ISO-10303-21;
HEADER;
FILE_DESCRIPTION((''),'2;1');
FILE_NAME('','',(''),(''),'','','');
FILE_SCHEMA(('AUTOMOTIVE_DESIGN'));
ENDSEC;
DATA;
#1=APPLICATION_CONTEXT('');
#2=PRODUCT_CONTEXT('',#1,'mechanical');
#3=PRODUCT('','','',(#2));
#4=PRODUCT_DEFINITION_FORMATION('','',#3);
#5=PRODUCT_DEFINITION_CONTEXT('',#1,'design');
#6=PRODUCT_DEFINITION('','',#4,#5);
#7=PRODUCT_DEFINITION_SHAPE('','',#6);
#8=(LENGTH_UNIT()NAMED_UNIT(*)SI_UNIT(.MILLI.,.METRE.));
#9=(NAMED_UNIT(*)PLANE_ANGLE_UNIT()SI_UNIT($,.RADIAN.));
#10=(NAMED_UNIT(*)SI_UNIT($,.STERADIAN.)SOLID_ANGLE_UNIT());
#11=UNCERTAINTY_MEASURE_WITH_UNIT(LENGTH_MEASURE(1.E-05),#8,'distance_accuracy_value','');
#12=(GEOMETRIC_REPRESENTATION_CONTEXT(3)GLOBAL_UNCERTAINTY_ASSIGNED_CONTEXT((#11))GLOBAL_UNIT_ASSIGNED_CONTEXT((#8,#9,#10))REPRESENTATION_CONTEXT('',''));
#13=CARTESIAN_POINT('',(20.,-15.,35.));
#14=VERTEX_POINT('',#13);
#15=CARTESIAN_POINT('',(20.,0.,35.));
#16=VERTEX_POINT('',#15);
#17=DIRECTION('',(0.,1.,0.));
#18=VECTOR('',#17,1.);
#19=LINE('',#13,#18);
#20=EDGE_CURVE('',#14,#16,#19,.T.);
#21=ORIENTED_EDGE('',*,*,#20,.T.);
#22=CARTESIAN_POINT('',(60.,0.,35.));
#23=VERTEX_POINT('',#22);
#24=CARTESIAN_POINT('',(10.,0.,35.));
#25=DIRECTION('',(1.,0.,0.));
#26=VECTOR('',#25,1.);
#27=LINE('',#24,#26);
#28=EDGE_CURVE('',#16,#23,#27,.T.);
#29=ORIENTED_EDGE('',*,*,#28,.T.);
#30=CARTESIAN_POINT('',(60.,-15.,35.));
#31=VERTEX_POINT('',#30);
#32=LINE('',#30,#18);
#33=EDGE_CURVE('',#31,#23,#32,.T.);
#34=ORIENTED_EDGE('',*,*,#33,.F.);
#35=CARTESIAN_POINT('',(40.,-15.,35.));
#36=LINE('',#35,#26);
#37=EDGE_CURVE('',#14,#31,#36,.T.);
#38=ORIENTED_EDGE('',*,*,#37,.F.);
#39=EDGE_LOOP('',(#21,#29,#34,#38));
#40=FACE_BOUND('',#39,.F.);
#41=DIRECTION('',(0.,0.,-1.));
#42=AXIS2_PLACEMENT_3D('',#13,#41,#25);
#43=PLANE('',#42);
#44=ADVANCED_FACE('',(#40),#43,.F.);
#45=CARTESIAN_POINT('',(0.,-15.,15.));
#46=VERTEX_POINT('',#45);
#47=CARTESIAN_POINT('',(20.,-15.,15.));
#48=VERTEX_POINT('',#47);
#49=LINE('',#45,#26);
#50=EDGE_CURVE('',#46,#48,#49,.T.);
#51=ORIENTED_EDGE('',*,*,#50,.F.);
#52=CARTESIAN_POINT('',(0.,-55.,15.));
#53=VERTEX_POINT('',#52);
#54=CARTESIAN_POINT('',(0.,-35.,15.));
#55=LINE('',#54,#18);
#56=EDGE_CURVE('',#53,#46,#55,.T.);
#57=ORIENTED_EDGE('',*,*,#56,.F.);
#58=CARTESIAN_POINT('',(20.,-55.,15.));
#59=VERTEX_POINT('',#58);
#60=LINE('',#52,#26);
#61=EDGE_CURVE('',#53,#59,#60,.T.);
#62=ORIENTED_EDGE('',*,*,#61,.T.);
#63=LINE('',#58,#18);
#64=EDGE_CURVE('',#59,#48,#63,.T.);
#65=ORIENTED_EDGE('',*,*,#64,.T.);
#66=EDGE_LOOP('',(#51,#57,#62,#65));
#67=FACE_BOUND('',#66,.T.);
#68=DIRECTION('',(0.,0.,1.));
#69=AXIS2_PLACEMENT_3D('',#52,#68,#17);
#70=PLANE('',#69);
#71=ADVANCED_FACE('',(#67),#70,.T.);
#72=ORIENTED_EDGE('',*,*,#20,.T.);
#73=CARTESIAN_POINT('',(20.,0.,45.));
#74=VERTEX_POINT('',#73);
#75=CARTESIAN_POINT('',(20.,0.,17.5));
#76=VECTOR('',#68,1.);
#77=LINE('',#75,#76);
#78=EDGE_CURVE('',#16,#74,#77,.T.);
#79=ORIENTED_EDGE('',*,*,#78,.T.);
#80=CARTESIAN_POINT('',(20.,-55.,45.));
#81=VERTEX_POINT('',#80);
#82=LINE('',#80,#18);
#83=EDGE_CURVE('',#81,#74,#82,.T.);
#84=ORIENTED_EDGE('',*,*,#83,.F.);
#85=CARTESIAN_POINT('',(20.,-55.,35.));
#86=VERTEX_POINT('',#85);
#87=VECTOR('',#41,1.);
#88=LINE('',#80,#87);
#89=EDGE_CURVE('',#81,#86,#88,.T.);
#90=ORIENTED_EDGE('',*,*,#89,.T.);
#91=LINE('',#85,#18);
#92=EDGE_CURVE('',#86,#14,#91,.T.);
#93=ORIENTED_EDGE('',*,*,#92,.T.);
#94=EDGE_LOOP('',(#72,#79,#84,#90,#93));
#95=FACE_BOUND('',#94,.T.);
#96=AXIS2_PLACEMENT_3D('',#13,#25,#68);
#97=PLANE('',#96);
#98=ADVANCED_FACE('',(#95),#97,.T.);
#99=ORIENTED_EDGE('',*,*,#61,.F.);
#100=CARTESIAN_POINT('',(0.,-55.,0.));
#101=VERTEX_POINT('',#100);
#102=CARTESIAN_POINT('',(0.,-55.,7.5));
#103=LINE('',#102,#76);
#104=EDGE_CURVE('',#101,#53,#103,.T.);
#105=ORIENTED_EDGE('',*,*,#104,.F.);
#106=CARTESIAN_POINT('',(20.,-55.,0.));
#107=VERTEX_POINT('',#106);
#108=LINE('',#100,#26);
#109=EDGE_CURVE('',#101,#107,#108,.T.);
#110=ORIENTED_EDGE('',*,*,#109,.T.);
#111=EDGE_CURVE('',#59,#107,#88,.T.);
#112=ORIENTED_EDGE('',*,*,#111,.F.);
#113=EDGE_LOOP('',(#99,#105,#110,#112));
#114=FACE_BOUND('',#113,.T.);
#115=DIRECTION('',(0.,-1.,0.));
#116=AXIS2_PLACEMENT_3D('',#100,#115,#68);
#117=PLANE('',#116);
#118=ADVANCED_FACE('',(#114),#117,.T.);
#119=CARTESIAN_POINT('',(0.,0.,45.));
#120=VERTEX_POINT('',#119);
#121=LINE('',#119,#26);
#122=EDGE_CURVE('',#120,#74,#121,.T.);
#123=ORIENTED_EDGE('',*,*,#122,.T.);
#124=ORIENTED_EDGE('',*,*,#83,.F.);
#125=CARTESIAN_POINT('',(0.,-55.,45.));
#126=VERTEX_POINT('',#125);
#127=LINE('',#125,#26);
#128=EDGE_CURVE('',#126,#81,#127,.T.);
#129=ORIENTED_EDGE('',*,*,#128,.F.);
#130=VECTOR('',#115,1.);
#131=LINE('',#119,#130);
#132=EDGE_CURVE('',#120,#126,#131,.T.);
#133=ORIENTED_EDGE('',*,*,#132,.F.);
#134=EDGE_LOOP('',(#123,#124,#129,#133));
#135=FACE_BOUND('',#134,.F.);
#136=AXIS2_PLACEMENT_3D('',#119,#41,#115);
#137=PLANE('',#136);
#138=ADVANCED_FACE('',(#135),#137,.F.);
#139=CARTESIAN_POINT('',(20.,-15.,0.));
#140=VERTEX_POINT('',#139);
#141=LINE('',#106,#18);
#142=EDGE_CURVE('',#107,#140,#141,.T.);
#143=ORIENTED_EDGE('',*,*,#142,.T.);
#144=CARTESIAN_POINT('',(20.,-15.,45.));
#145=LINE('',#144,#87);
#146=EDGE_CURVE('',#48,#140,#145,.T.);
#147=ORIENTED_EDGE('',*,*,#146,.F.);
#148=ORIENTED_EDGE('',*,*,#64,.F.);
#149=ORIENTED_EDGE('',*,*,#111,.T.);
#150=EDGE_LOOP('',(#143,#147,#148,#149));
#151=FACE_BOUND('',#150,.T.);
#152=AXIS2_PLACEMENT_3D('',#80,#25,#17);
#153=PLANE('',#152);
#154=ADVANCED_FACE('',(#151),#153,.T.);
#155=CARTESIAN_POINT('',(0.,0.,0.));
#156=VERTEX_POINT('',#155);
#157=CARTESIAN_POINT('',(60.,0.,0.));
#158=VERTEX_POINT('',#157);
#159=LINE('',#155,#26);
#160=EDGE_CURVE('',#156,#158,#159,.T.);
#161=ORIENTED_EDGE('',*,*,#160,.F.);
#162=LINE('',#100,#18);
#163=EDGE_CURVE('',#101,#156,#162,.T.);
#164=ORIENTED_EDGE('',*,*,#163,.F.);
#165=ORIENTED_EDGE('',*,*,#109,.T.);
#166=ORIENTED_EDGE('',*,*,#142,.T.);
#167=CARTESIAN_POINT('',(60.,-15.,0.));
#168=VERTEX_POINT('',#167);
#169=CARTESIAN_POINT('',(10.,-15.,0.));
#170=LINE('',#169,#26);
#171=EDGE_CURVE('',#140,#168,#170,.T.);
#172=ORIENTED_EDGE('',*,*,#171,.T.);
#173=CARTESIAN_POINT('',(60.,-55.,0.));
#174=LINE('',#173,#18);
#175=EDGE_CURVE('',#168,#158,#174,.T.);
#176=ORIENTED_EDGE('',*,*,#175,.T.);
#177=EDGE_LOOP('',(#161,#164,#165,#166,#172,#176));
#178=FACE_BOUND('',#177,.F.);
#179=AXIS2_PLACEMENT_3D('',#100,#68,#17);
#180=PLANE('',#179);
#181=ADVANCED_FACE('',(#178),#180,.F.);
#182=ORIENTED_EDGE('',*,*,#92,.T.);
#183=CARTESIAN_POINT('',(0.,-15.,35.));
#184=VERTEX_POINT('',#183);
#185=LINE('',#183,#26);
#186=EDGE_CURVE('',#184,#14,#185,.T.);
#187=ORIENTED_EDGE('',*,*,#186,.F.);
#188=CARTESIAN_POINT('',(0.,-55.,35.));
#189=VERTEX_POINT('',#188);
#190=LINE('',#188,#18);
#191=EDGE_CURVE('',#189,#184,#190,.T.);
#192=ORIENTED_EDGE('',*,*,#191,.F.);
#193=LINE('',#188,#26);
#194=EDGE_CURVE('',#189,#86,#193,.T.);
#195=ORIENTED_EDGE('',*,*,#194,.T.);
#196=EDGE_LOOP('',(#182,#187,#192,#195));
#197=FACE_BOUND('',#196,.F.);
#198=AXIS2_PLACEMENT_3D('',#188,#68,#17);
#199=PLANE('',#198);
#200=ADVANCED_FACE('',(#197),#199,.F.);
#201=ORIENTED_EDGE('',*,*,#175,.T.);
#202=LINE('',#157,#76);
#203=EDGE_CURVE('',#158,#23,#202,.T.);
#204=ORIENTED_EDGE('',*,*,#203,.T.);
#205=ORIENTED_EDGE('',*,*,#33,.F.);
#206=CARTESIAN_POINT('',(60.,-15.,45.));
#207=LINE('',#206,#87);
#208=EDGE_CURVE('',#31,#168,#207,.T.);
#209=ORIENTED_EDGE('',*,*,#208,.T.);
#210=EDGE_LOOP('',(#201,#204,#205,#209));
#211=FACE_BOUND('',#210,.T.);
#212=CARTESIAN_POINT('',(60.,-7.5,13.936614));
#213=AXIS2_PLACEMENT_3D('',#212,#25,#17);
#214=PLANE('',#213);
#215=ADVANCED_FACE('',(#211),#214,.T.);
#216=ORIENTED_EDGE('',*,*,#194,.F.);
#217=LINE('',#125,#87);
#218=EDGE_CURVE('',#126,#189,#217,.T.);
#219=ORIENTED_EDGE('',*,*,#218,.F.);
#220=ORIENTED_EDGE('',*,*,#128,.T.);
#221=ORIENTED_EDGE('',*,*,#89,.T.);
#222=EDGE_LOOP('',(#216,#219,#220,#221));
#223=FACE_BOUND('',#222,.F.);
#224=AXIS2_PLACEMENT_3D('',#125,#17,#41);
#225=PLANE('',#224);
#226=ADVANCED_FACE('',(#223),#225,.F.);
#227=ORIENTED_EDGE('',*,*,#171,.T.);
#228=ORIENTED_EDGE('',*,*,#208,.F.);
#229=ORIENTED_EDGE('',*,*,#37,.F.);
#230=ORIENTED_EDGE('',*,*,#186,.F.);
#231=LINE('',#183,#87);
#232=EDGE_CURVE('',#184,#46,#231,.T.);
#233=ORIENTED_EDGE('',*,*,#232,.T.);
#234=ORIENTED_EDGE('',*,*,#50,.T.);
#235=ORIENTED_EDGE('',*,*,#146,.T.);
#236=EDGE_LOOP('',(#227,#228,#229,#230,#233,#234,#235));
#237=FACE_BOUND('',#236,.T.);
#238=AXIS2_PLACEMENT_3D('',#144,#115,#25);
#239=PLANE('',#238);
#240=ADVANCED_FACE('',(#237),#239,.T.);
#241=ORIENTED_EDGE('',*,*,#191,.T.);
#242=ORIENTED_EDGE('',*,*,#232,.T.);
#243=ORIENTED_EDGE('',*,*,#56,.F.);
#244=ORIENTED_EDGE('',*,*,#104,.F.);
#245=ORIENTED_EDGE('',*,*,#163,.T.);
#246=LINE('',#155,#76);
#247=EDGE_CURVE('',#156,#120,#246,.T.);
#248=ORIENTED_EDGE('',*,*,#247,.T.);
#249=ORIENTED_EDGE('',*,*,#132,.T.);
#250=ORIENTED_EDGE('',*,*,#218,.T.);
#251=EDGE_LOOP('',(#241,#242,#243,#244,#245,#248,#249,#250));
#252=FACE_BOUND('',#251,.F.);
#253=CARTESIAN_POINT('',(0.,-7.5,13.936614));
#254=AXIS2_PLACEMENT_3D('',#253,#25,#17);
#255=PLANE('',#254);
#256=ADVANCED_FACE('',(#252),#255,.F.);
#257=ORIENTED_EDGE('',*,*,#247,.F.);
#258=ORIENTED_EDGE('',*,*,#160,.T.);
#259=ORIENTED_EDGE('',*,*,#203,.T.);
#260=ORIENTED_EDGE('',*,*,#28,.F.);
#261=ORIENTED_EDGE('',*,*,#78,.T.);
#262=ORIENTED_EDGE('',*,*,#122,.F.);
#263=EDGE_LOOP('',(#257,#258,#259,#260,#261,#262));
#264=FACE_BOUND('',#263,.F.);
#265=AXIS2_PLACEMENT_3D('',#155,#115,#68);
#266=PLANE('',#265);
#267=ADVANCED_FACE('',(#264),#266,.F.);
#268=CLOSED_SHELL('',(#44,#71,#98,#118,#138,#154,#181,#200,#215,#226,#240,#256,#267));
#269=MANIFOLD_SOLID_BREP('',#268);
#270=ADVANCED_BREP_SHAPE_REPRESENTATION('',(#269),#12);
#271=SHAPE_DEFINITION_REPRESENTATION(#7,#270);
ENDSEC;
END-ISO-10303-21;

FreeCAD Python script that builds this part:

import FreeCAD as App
import Part
import Sketcher
from FreeCAD import Vector
Q = App.Units.Quantity

doc = App.newDocument("Part")
body = doc.addObject("PartDesign::Body", "Body")

# Sketch on YZ plane
sketch1 = body.newObject("Sketcher::SketchObject", "Sketch")
sketch1.AttachmentSupport = (doc.getObject("YZ_Plane"), [""])
sketch1.MapMode = "FlatFace"
sketch1.addGeometry([
    Part.LineSegment(Vector(0, 0, 0), Vector(0, 45, 0)),  # 0
    Part.LineSegment(Vector(0, 45, 0), Vector(-55, 45, 0)),  # 1
    Part.LineSegment(Vector(-55, 45, 0), Vector(-55, 35, 0)),  # 2
    Part.LineSegment(Vector(-55, 35, 0), Vector(-15, 35, 0)),  # 3
    Part.LineSegment(Vector(-15, 35, 0), Vector(-15, 15, 0)),  # 4
    Part.LineSegment(Vector(-15, 15, 0), Vector(-55, 15, 0)),  # 5
    Part.LineSegment(Vector(-55, 15, 0), Vector(-55, 0, 0)),  # 6
    Part.LineSegment(Vector(-55, 0, 0), Vector(0, 0, 0)),  # 7
], False)
sketch1.addConstraint([
    Sketcher.Constraint("Coincident", 0, 2, 1, 1),
    Sketcher.Constraint("Coincident", 1, 2, 2, 1),
    Sketcher.Constraint("Coincident", 2, 2, 3, 1),
    Sketcher.Constraint("Coincident", 3, 2, 4, 1),
    Sketcher.Constraint("Coincident", 4, 2, 5, 1),
    Sketcher.Constraint("Coincident", 5, 2, 6, 1),
    Sketcher.Constraint("Coincident", 6, 2, 7, 1),
    Sketcher.Constraint("Coincident", 7, 2, 0, 1),
    Sketcher.Constraint("Vertical", 0),
    Sketcher.Constraint("Horizontal", 1),
    Sketcher.Constraint("Vertical", 2),
    Sketcher.Constraint("Horizontal", 3),
    Sketcher.Constraint("Vertical", 4),
    Sketcher.Constraint("Horizontal", 5),
    Sketcher.Constraint("Vertical", 6),
    Sketcher.Constraint("Horizontal", 7),
    Sketcher.Constraint("Coincident", 7, 2, -1, 1),
    Sketcher.Constraint("Vertical", 2, 2, 5, 2),
    Sketcher.Constraint("DistanceX", 1, 2, 1, 1, Q("55 mm")),
    Sketcher.Constraint("DistanceX", 3, 1, 3, 2, Q("40 mm")),
    Sketcher.Constraint("DistanceY", 0, 1, 0, 2, Q("45 mm")),
    Sketcher.Constraint("DistanceY", 2, 2, 2, 1, Q("10 mm")),
    Sketcher.Constraint("DistanceY", 4, 2, 4, 1, Q("20 mm")),
])
pad1 = body.newObject("PartDesign::Pad", "Pad")
pad1.Profile = sketch1
pad1.Length = 60

# Sketch on XY plane
sketch2 = body.newObject("Sketcher::SketchObject", "Sketch001")
sketch2.AttachmentSupport = (doc.getObject("XY_Plane"), [""])
sketch2.MapMode = "FlatFace"
sketch2.AttachmentOffset = App.Placement(Vector(0, 0, 45), App.Rotation())
sketch2.addGeometry([
    Part.LineSegment(Vector(20, -15, 0), Vector(20, -55, 0)),
    Part.LineSegment(Vector(20, -55, 0), Vector(60, -55, 0)),
    Part.LineSegment(Vector(60, -55, 0), Vector(60, -15, 0)),
    Part.LineSegment(Vector(60, -15, 0), Vector(20, -15, 0)),
], False)
sketch2.addConstraint([
    Sketcher.Constraint("Coincident", 0, 2, 1, 1),
    Sketcher.Constraint("Coincident", 1, 2, 2, 1),
    Sketcher.Constraint("Coincident", 2, 2, 3, 1),
    Sketcher.Constraint("Coincident", 3, 2, 0, 1),
    Sketcher.Constraint("Vertical", 0),
    Sketcher.Constraint("Horizontal", 1),
    Sketcher.Constraint("Vertical", 2),
    Sketcher.Constraint("Horizontal", 3),
    Sketcher.Constraint("Equal", 3, 0),
    Sketcher.Constraint("DistanceX", 1, 1, 1, 2, Q("40 mm")),
    Sketcher.Constraint("DistanceX", -1, 1, 0, 2, Q("20 mm")),
    Sketcher.Constraint("DistanceY", 0, 2, -1, 1, Q("55 mm")),
])
pocket1 = body.newObject("PartDesign::Pocket", "Pocket")
pocket1.Profile = sketch2
pocket1.Type = "ThroughAll"

# Sketch on XZ plane
sketch3 = body.newObject("Sketcher::SketchObject", "Sketch002")
sketch3.AttachmentSupport = (doc.getObject("XZ_Plane"), [""])
sketch3.MapMode = "FlatFace"
sketch3.AttachmentOffset = App.Placement(Vector(0, 0, 15), App.Rotation())
sketch3.addGeometry([
    Part.LineSegment(Vector(20, 45, 0), Vector(20, 35, 0)),
    Part.LineSegment(Vector(20, 35, 0), Vector(60, 35, 0)),
    Part.LineSegment(Vector(60, 35, 0), Vector(60, 45, 0)),
    Part.LineSegment(Vector(60, 45, 0), Vector(20, 45, 0)),
], False)
sketch3.addConstraint([
    Sketcher.Constraint("Coincident", 0, 2, 1, 1),
    Sketcher.Constraint("Coincident", 1, 2, 2, 1),
    Sketcher.Constraint("Coincident", 2, 2, 3, 1),
    Sketcher.Constraint("Coincident", 3, 2, 0, 1),
    Sketcher.Constraint("Vertical", 0),
    Sketcher.Constraint("Horizontal", 1),
    Sketcher.Constraint("Vertical", 2),
    Sketcher.Constraint("Horizontal", 3),
    Sketcher.Constraint("DistanceX", 1, 1, 1, 2, Q("40 mm")),
    Sketcher.Constraint("DistanceY", 0, 2, 0, 1, Q("10 mm")),
    Sketcher.Constraint("DistanceX", -1, 1, 0, 2, Q("20 mm")),
    Sketcher.Constraint("DistanceY", -1, 1, 0, 2, Q("35 mm")),
])
pocket2 = body.newObject("PartDesign::Pocket", "Pocket001")
pocket2.Profile = sketch3
pocket2.Length = 25

doc.recompute()
